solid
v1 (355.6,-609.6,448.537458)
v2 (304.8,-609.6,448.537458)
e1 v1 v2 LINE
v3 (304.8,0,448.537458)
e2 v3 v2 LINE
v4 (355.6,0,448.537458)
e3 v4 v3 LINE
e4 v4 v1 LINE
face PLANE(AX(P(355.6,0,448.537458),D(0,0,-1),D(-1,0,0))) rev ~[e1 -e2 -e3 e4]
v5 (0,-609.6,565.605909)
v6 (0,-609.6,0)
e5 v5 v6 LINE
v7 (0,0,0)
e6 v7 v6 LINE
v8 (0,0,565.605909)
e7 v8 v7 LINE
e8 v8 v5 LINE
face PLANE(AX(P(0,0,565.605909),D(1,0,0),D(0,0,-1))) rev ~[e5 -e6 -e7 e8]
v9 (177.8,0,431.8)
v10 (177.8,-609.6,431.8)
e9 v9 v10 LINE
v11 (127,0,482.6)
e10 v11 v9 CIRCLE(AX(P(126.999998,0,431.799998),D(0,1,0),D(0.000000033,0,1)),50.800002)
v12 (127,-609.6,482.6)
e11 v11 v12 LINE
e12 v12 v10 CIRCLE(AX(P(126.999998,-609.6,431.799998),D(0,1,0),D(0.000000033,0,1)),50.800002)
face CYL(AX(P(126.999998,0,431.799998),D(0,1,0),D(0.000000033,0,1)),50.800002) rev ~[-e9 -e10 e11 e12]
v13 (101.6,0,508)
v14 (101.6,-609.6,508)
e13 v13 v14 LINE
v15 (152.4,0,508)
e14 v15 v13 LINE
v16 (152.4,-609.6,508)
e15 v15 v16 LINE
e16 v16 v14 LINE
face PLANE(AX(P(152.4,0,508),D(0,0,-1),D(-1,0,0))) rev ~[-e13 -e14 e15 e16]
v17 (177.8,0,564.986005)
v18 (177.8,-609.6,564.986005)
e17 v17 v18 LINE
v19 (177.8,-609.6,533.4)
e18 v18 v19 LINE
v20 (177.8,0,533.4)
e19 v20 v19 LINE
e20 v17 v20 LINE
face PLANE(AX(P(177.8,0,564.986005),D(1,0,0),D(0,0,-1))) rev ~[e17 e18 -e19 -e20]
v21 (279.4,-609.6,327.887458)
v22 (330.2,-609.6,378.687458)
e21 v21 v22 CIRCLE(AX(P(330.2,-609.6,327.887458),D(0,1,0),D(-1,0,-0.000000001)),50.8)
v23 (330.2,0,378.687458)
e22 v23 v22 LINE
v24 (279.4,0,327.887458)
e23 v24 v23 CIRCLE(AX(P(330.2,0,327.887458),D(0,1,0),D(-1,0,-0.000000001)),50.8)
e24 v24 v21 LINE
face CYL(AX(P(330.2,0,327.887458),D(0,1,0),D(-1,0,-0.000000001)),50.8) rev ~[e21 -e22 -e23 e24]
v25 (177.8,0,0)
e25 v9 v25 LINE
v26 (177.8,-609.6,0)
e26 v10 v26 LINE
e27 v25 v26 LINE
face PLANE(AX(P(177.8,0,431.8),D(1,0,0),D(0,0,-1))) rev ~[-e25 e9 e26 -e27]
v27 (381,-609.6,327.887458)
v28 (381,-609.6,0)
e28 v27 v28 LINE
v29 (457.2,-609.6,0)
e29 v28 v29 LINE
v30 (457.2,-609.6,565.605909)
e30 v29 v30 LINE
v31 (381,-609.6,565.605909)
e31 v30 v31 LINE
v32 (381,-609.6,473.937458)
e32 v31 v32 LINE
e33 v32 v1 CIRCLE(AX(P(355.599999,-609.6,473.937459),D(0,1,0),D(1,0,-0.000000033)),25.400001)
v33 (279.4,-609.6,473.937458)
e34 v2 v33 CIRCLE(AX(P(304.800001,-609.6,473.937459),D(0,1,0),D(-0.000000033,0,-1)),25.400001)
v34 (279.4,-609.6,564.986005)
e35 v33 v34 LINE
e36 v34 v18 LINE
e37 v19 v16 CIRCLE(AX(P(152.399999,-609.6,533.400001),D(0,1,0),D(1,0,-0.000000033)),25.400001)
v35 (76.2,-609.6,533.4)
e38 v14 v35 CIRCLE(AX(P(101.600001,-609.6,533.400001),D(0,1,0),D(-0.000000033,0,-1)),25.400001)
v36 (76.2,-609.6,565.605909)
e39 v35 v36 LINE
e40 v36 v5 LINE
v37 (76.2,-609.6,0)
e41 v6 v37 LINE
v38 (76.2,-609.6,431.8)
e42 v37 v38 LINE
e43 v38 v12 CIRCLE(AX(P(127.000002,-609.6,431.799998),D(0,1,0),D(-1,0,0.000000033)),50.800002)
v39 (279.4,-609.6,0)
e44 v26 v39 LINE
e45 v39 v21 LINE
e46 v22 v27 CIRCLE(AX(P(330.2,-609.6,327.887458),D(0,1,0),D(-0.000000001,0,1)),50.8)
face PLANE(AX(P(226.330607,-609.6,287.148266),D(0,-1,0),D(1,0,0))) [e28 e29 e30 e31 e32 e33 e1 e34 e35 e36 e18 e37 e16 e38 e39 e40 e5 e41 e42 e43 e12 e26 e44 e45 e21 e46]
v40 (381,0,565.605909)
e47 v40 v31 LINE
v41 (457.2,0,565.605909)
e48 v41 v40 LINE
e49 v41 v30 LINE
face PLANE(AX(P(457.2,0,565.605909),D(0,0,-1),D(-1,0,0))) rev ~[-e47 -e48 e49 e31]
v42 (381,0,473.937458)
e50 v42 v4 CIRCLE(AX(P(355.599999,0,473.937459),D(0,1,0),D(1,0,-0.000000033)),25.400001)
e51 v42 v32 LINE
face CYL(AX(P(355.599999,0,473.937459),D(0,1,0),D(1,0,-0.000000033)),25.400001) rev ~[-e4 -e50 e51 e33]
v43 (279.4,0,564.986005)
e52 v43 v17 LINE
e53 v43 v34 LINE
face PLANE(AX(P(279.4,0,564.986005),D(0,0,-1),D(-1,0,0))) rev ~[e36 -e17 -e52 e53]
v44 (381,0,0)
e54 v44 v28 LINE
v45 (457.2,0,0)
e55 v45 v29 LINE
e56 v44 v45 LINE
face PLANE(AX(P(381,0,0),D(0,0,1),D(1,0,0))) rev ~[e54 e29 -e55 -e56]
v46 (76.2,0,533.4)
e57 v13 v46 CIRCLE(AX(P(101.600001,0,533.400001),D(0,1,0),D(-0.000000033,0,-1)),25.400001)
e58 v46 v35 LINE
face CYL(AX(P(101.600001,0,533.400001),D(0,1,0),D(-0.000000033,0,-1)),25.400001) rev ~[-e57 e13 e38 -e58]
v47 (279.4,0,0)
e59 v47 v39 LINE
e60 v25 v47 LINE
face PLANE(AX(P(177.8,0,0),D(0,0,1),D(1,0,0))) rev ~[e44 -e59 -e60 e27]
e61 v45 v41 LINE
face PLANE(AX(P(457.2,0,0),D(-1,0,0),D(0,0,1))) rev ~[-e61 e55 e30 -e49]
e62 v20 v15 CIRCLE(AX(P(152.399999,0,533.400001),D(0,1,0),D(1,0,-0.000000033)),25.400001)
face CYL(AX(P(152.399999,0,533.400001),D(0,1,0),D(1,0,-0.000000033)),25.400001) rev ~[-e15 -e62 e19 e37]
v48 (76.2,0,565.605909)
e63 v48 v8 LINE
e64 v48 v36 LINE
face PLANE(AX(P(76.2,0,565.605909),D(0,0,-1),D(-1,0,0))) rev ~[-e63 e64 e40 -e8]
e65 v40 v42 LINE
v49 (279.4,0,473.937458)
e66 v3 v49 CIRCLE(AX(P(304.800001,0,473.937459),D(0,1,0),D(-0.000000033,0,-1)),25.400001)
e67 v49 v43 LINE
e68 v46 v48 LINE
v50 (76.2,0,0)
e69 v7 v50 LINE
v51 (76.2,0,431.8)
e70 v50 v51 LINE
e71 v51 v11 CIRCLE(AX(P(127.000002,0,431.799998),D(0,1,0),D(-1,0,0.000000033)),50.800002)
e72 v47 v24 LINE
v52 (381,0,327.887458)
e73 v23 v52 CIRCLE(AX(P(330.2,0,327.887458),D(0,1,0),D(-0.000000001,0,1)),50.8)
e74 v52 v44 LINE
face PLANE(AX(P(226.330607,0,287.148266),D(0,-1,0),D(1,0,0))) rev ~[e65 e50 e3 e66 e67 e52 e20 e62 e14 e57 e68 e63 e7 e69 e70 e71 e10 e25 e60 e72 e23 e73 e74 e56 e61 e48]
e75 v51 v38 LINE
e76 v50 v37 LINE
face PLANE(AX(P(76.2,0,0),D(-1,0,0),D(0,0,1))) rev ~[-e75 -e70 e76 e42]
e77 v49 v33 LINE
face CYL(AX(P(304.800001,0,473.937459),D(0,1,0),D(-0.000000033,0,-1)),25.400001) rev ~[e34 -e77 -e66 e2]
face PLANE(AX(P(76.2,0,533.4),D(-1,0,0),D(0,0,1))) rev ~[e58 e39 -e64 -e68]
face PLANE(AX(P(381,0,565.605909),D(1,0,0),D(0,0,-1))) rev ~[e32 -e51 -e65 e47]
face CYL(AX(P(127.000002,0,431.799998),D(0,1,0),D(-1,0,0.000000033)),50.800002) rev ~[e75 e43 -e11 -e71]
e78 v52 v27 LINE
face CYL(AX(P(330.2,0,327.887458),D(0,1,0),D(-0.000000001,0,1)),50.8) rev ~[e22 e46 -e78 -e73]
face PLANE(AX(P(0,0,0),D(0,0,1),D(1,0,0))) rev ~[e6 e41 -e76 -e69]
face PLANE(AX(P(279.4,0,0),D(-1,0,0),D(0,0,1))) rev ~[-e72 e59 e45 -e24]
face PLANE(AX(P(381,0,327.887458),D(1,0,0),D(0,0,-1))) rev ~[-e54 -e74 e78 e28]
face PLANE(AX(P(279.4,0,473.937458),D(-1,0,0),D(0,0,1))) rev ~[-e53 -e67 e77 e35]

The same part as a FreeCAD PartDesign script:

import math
import FreeCAD as App
import Part
import Sketcher
from FreeCAD import Vector
Q = App.Units.Quantity

doc = App.newDocument("Part")
body = doc.addObject("PartDesign::Body", "Body")

# Sketch on XZ plane
sketch1 = body.newObject("Sketcher::SketchObject", "Sketch")
sketch1.AttachmentSupport = (doc.getObject("XZ_Plane"), [""])
sketch1.MapMode = "FlatFace"
sketch1.addGeometry(Part.LineSegment(Vector(0, 0, 0), Vector(76, 0, 0)), False)
sketch1.addGeometry(Part.LineSegment(Vector(76, 0, 0), Vector(76, 432, 0)), False)
sketch1.addGeometry(Part.ArcOfCircle(Part.Circle(Vector(127, 432, 0), Vector(0, 0, 1), 51), math.radians(90), math.radians(180)), False)
sketch1.addGeometry(Part.ArcOfCircle(Part.Circle(Vector(127, 432, 0), Vector(0, 0, 1), 51), math.radians(0), math.radians(90)), False)
sketch1.addGeometry(Part.LineSegment(Vector(178, 432, 0), Vector(178, 0, 0)), False)
sketch1.addGeometry(Part.LineSegment(Vector(178, 0, 0), Vector(279, 0, 0)), False)
sketch1.addGeometry(Part.LineSegment(Vector(279, 0, 0), Vector(279, 328, 0)), False)
sketch1.addGeometry(Part.ArcOfCircle(Part.Circle(Vector(330, 328, 0), Vector(0, 0, 1), 51), math.radians(90), math.radians(180)), False)
sketch1.addGeometry(Part.ArcOfCircle(Part.Circle(Vector(330, 328, 0), Vector(0, 0, 1), 51), math.radians(0), math.radians(90)), False)
sketch1.addGeometry(Part.LineSegment(Vector(381, 328, 0), Vector(381, 0, 0)), False)
sketch1.addGeometry(Part.LineSegment(Vector(381, 0, 0), Vector(457, 0, 0)), False)
sketch1.addGeometry(Part.LineSegment(Vector(457, 0, 0), Vector(457, 566, 0)), False)
sketch1.addGeometry(Part.LineSegment(Vector(457, 566, 0), Vector(381, 566, 0)), False)
sketch1.addGeometry(Part.LineSegment(Vector(381, 566, 0), Vector(381, 474, 0)), False)
sketch1.addGeometry(Part.ArcOfCircle(Part.Circle(Vector(356, 474, 0), Vector(0, 0, 1), 25), math.radians(-90), math.radians(0)), False)
sketch1.addGeometry(Part.LineSegment(Vector(356, 449, 0), Vector(305, 449, 0)), False)
sketch1.addGeometry(Part.ArcOfCircle(Part.Circle(Vector(305, 474, 0), Vector(0, 0, 1), 25), math.radians(-180), math.radians(-90)), False)
sketch1.addGeometry(Part.LineSegment(Vector(279, 474, 0), Vector(279, 565, 0)), False)
sketch1.addGeometry(Part.LineSegment(Vector(279, 565, 0), Vector(178, 565, 0)), False)
sketch1.addGeometry(Part.LineSegment(Vector(178, 565, 0), Vector(178, 533, 0)), False)
sketch1.addGeometry(Part.ArcOfCircle(Part.Circle(Vector(152, 533, 0), Vector(0, 0, 1), 25), math.radians(-90), math.radians(0)), False)
sketch1.addGeometry(Part.LineSegment(Vector(152, 508, 0), Vector(102, 508, 0)), False)
sketch1.addGeometry(Part.ArcOfCircle(Part.Circle(Vector(102, 533, 0), Vector(0, 0, 1), 25), math.radians(-180), math.radians(-90)), False)
sketch1.addGeometry(Part.LineSegment(Vector(76, 533, 0), Vector(76, 566, 0)), False)
sketch1.addGeometry(Part.LineSegment(Vector(76, 566, 0), Vector(0, 566, 0)), False)
sketch1.addGeometry(Part.LineSegment(Vector(0, 566, 0), Vector(0, 0, 0)), False)
sketch1.addConstraint(Sketcher.Constraint("Coincident", 0, 2, 1, 1))
sketch1.addConstraint(Sketcher.Constraint("Tangent", 1, 2, 2, 2))
sketch1.addConstraint(Sketcher.Constraint("Tangent", 2, 1, 3, 2))
sketch1.addConstraint(Sketcher.Constraint("Tangent", 3, 1, 4, 1))
sketch1.addConstraint(Sketcher.Constraint("Coincident", 4, 2, 5, 1))
sketch1.addConstraint(Sketcher.Constraint("Coincident", 5, 2, 6, 1))
sketch1.addConstraint(Sketcher.Constraint("Tangent", 6, 2, 7, 2))
sketch1.addConstraint(Sketcher.Constraint("Tangent", 7, 1, 8, 2))
sketch1.addConstraint(Sketcher.Constraint("Tangent", 8, 1, 9, 1))
sketch1.addConstraint(Sketcher.Constraint("Coincident", 9, 2, 10, 1))
sketch1.addConstraint(Sketcher.Constraint("Coincident", 10, 2, 11, 1))
sketch1.addConstraint(Sketcher.Constraint("Coincident", 11, 2, 12, 1))
sketch1.addConstraint(Sketcher.Constraint("Coincident", 12, 2, 13, 1))
sketch1.addConstraint(Sketcher.Constraint("Tangent", 13, 2, 14, 2))
sketch1.addConstraint(Sketcher.Constraint("Tangent", 14, 1, 15, 1))
sketch1.addConstraint(Sketcher.Constraint("Tangent", 15, 2, 16, 2))
sketch1.addConstraint(Sketcher.Constraint("Tangent", 16, 1, 17, 1))
sketch1.addConstraint(Sketcher.Constraint("Coincident", 17, 2, 18, 1))
sketch1.addConstraint(Sketcher.Constraint("Coincident", 18, 2, 19, 1))
sketch1.addConstraint(Sketcher.Constraint("Tangent", 19, 2, 20, 2))
sketch1.addConstraint(Sketcher.Constraint("Tangent", 20, 1, 21, 1))
sketch1.addConstraint(Sketcher.Constraint("Tangent", 21, 2, 22, 2))
sketch1.addConstraint(Sketcher.Constraint("Tangent", 22, 1, 23, 1))
sketch1.addConstraint(Sketcher.Constraint("Coincident", 23, 2, 24, 1))
sketch1.addConstraint(Sketcher.Constraint("Coincident", 24, 2, 25, 1))
sketch1.addConstraint(Sketcher.Constraint("Coincident", 25, 2, 0, 1))
sketch1.addConstraint(Sketcher.Constraint("Horizontal", 0))
sketch1.addConstraint(Sketcher.Constraint("Vertical", 1))
sketch1.addConstraint(Sketcher.Constraint("Vertical", 4))
sketch1.addConstraint(Sketcher.Constraint("Horizontal", 5))
sketch1.addConstraint(Sketcher.Constraint("Vertical", 6))
sketch1.addConstraint(Sketcher.Constraint("Vertical", 9))
sketch1.addConstraint(Sketcher.Constraint("Horizontal", 10))
sketch1.addConstraint(Sketcher.Constraint("Vertical", 11))
sketch1.addConstraint(Sketcher.Constraint("Horizontal", 12))
sketch1.addConstraint(Sketcher.Constraint("Vertical", 13))
sketch1.addConstraint(Sketcher.Constraint("Horizontal", 15))
sketch1.addConstraint(Sketcher.Constraint("Vertical", 17))
sketch1.addConstraint(Sketcher.Constraint("Horizontal", 18))
sketch1.addConstraint(Sketcher.Constraint("Vertical", 19))
sketch1.addConstraint(Sketcher.Constraint("Horizontal", 21))
sketch1.addConstraint(Sketcher.Constraint("Vertical", 23))
sketch1.addConstraint(Sketcher.Constraint("Horizontal", 24))
sketch1.addConstraint(Sketcher.Constraint("Vertical", 25))
sketch1.addConstraint(Sketcher.Constraint("Coincident", 25, 2, -1, 1))
sketch1.addConstraint(Sketcher.Constraint("Equal", 2, 3))
sketch1.addConstraint(Sketcher.Constraint("Equal", 3, 7))
sketch1.addConstraint(Sketcher.Constraint("Equal", 7, 8))
sketch1.addConstraint(Sketcher.Constraint("Equal", 14, 16))
sketch1.addConstraint(Sketcher.Constraint("Equal", 16, 20))
sketch1.addConstraint(Sketcher.Constraint("Equal", 20, 22))
sketch1.addConstraint(Sketcher.Constraint("PointOnObject", 4, 2, -1))
sketch1.addConstraint(Sketcher.Constraint("PointOnObject", 9, 2, -1))
sketch1.addConstraint(Sketcher.Constraint("Horizontal", 12, 2, 23, 2))
sketch1.addConstraint(Sketcher.Constraint("Vertical", 3, 3, 2, 1))
sketch1.addConstraint(Sketcher.Constraint("Vertical", 8, 3, 7, 1))
sketch1.addConstraint(Sketcher.Constraint("Vertical", 9, 2, 12, 2))
sketch1.addConstraint(Sketcher.Constraint("Vertical", 6, 2, 16, 1))
sketch1.addConstraint(Sketcher.Constraint("Vertical", 4, 2, 18, 2))
sketch1.addConstraint(Sketcher.Constraint("Vertical", 1, 2, 22, 1))
sketch1.addConstraint(Sketcher.Constraint("Equal", 0, 10))
sketch1.addConstraint(Sketcher.Constraint("Radius", 2, Q("2.0000001 in")))
sketch1.addConstraint(Sketcher.Constraint("Radius", 14, Q("1 in")))
sketch1.addConstraint(Sketcher.Constraint("DistanceX", 0, 1, 0, 2, Q("3 in")))
sketch1.addConstraint(Sketcher.Constraint("DistanceX", 5, 1, 5, 2, Q("4 in")))
sketch1.addConstraint(Sketcher.Constraint("DistanceY", 1, 1, 1, 2, Q("17 in")))
sketch1.addConstraint(Sketcher.Constraint("DistanceY", -1, 1, 20, 3, Q("21 in")))
sketch1.addConstraint(Sketcher.Constraint("DistanceY", 8, 3, 14, 3, Q("5.75 in")))
sketch1.addConstraint(Sketcher.Constraint("DistanceY", 6, 1, 6, 2, Q("327.887458 mm")))
sketch1.addConstraint(Sketcher.Constraint("DistanceY", 11, 1, 11, 2, Q("565.605909 mm")))
sketch1.addConstraint(Sketcher.Constraint("DistanceY", 17, 1, 17, 2, Q("91.048547 mm")))
pad1 = body.newObject("PartDesign::Pad", "Pad")
pad1.Profile = sketch1
pad1.Length = Q("24 in")

doc.recompute()
